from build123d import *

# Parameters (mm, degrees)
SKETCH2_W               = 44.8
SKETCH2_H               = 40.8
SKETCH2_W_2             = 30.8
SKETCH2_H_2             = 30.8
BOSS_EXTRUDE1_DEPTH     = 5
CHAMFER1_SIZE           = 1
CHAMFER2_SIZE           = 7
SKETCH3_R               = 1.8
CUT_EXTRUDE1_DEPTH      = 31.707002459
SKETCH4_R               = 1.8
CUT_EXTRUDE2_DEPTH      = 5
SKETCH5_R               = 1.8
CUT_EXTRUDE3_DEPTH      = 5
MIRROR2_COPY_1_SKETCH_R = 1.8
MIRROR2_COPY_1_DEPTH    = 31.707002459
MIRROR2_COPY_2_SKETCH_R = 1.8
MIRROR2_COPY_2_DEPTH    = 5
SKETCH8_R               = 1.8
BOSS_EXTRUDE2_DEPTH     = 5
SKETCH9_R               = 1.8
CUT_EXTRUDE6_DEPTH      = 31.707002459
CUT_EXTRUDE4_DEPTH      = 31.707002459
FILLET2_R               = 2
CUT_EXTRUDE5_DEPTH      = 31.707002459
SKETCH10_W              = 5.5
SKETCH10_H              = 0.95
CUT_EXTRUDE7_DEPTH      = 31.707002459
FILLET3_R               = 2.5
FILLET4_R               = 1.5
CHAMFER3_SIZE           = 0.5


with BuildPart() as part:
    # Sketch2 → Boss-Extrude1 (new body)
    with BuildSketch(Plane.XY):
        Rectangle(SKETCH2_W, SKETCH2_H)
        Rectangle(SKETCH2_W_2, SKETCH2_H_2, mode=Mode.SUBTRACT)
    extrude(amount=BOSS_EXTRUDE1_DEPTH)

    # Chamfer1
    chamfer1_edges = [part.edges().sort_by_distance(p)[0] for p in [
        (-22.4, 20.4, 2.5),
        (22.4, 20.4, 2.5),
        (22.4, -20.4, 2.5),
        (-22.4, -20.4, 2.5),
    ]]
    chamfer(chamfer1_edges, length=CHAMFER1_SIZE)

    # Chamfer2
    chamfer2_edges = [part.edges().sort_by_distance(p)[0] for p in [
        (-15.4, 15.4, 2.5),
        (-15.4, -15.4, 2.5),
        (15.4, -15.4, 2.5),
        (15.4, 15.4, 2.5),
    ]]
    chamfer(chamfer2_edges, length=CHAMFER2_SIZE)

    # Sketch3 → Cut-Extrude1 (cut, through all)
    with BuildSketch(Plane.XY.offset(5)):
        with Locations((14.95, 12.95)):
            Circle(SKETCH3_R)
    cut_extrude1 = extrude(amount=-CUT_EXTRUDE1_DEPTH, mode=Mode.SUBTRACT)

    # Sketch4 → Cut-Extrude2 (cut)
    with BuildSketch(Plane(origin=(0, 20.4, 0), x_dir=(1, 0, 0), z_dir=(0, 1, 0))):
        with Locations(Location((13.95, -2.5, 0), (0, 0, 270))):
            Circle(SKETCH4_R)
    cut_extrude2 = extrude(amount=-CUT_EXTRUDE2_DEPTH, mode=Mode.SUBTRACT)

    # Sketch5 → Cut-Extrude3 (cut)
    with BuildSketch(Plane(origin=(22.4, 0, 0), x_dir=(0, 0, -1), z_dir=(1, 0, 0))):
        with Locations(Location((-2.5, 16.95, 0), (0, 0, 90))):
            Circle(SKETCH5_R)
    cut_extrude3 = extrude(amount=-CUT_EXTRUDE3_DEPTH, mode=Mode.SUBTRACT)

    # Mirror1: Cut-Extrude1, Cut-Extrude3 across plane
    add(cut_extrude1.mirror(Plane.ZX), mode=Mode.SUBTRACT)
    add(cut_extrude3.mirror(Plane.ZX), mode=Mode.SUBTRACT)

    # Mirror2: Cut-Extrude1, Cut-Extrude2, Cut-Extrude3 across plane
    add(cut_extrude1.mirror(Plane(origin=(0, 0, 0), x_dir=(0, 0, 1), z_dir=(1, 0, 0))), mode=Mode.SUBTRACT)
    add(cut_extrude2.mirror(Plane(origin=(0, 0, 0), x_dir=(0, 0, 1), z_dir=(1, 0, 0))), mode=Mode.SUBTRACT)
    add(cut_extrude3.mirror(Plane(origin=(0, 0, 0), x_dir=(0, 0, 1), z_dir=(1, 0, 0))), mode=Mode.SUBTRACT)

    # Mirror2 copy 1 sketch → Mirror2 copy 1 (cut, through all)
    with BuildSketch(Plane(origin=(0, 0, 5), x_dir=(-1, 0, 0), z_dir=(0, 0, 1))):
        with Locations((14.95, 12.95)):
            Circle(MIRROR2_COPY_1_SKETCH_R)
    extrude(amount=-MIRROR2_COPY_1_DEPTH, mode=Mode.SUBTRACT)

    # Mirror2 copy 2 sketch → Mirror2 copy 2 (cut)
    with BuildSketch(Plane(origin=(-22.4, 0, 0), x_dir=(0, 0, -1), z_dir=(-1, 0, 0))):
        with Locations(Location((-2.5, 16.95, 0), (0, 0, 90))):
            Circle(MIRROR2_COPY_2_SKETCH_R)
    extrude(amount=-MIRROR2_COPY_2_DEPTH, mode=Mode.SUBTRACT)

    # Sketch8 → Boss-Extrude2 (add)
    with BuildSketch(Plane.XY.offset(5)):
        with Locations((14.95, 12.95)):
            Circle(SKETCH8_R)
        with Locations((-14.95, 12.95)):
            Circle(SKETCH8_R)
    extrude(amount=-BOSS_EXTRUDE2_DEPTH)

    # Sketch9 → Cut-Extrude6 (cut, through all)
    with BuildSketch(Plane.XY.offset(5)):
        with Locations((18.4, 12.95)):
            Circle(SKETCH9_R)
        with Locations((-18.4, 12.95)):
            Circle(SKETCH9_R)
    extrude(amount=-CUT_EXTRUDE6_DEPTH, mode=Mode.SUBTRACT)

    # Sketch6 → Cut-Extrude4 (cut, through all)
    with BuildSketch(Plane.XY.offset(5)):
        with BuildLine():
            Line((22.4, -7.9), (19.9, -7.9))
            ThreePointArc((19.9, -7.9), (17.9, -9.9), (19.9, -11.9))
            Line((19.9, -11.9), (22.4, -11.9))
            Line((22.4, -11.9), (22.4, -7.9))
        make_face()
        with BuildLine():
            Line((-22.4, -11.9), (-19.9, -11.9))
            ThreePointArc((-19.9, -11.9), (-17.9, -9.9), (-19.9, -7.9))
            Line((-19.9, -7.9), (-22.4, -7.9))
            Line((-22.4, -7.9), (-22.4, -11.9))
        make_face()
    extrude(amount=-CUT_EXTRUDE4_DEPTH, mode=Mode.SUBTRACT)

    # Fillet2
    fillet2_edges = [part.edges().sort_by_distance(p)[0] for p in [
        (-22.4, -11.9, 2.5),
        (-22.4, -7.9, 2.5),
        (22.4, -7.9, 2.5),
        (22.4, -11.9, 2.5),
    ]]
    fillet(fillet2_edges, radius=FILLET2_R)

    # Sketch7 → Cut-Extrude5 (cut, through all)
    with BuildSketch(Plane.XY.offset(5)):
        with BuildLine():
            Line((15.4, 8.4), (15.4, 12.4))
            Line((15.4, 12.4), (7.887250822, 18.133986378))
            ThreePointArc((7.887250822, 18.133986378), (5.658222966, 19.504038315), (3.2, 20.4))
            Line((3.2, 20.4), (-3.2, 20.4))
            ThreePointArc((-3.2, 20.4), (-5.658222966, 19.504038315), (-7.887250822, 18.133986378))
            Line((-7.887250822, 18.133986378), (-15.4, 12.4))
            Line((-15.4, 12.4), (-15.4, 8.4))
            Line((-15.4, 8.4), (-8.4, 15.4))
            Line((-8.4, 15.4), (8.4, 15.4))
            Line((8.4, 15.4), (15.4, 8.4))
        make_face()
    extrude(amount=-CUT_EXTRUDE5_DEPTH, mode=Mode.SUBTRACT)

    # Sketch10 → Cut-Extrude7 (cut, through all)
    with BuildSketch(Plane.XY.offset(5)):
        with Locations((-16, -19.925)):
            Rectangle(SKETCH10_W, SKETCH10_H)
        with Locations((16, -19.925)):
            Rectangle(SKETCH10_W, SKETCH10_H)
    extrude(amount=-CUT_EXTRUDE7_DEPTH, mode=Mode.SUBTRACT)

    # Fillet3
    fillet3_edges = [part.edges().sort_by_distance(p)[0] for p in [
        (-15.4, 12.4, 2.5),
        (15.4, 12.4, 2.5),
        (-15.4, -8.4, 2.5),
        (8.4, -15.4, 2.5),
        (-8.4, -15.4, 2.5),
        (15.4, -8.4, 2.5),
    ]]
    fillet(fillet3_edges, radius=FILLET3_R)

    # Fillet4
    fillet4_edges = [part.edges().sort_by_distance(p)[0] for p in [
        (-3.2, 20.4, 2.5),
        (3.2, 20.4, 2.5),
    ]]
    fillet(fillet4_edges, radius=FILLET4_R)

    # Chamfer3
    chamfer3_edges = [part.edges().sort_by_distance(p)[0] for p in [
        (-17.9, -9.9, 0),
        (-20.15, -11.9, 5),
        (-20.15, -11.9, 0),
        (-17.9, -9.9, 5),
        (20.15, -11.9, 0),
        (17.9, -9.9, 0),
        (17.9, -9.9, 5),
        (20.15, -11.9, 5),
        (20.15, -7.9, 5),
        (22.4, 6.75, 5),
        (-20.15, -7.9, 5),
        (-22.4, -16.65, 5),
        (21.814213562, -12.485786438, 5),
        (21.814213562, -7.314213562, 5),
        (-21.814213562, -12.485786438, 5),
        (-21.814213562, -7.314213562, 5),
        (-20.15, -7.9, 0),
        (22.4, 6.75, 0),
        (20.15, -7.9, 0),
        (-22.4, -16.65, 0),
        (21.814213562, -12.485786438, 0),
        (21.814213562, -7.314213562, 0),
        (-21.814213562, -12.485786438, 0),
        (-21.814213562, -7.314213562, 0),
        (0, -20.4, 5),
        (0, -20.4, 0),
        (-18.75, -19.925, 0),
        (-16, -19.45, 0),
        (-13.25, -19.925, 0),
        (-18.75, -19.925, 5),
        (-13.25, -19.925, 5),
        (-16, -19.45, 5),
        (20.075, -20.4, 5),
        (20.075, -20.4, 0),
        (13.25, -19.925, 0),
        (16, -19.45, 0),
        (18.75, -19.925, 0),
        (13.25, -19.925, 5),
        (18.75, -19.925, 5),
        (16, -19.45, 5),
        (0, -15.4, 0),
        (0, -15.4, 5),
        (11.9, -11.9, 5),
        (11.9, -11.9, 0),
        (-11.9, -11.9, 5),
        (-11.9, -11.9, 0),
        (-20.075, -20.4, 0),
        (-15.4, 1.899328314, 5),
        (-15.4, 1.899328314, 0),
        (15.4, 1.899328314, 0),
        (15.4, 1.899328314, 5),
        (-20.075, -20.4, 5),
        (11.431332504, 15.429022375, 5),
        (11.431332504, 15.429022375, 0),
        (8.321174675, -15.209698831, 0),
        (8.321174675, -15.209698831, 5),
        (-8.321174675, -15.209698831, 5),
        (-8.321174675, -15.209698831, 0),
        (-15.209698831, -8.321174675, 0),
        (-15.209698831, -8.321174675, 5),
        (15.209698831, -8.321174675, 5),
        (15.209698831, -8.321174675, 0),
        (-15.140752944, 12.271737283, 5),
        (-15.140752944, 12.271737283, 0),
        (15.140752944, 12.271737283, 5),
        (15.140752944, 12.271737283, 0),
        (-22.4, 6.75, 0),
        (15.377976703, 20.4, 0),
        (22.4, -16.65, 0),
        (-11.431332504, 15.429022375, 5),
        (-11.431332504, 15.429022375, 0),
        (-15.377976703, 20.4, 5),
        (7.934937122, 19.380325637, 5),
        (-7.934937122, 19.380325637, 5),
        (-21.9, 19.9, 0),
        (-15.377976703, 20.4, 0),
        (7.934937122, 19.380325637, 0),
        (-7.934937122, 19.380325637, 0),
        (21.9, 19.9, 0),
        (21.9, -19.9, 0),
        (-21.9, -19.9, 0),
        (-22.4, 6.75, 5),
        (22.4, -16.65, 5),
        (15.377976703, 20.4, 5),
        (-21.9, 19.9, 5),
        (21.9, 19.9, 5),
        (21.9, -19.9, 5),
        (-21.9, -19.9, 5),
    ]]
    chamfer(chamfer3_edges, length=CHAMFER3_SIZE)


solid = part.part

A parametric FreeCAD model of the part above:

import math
import FreeCAD as App
import Part
import Sketcher
from FreeCAD import Vector
Q = App.Units.Quantity


def edges_at(feature, points):
    """Names of the edges that pass closest to the given points."""
    edges = feature.Shape.Edges
    near = lambda p: min(range(len(edges)), key=lambda i: edges[i].distToShape(Part.Vertex(*p))[0])
    return sorted({f"Edge{near(p) + 1}" for p in points})

doc = App.newDocument("Part")
body = doc.addObject("PartDesign::Body", "Body")

# Sketch on XY plane
sketch1 = body.newObject("Sketcher::SketchObject", "Sketch")
sketch1.AttachmentSupport = (doc.getObject("XY_Plane"), [""])
sketch1.MapMode = "FlatFace"
sketch1.addGeometry([
    Part.LineSegment(Vector(-22, 20, 0), Vector(-22, -20, 0)),  # 0
    Part.LineSegment(Vector(-22, -20, 0), Vector(22, -20, 0)),  # 1
    Part.LineSegment(Vector(22, -20, 0), Vector(22, 20, 0)),  # 2
    Part.LineSegment(Vector(22, 20, 0), Vector(-22, 20, 0)),  # 3
    Part.LineSegment(Vector(15, -15, 0), Vector(-15, -15, 0)),  # 4
    Part.LineSegment(Vector(-15, -15, 0), Vector(-15, 15, 0)),  # 5
    Part.LineSegment(Vector(-15, 15, 0), Vector(15, 15, 0)),  # 6
    Part.LineSegment(Vector(15, 15, 0), Vector(15, -15, 0)),  # 7
], False)
sketch1.addConstraint([
    Sketcher.Constraint("Coincident", 0, 2, 1, 1),
    Sketcher.Constraint("Coincident", 1, 2, 2, 1),
    Sketcher.Constraint("Coincident", 2, 2, 3, 1),
    Sketcher.Constraint("Coincident", 3, 2, 0, 1),
    Sketcher.Constraint("Coincident", 4, 2, 5, 1),
    Sketcher.Constraint("Coincident", 5, 2, 6, 1),
    Sketcher.Constraint("Coincident", 6, 2, 7, 1),
    Sketcher.Constraint("Coincident", 7, 2, 4, 1),
    Sketcher.Constraint("Vertical", 0),
    Sketcher.Constraint("Horizontal", 1),
    Sketcher.Constraint("Vertical", 2),
    Sketcher.Constraint("Horizontal", 3),
    Sketcher.Constraint("Horizontal", 4),
    Sketcher.Constraint("Vertical", 5),
    Sketcher.Constraint("Horizontal", 6),
    Sketcher.Constraint("Vertical", 7),
    Sketcher.Constraint("Symmetric", 0, 2, 2, 2, -1, 1),
    Sketcher.Constraint("Symmetric", 4, 2, 6, 2, -1, 1),
    Sketcher.Constraint("Equal", 6, 5),
    Sketcher.Constraint("DistanceX", 1, 1, 1, 2, Q("44.8 mm")),
    Sketcher.Constraint("DistanceX", 4, 2, 4, 1, Q("30.8 mm")),
    Sketcher.Constraint("DistanceY", 0, 2, 0, 1, Q("40.8 mm")),
])
pad1 = body.newObject("PartDesign::Pad", "Pad")
pad1.Profile = sketch1
pad1.Length = 5
doc.recompute()

chamfer = body.newObject("PartDesign::Chamfer", "Chamfer")
chamfer.Base = (pad1, edges_at(pad1, [
    (-22.4, 20.4, 2.5),
    (22.4, 20.4, 2.5),
    (22.4, -20.4, 2.5),
    (-22.4, -20.4, 2.5),
]))
chamfer.Size = 1
doc.recompute()

chamfer2 = body.newObject("PartDesign::Chamfer", "Chamfer001")
chamfer2.Base = (chamfer, edges_at(chamfer, [
    (-15.4, 15.4, 2.5),
    (-15.4, -15.4, 2.5),
    (15.4, -15.4, 2.5),
    (15.4, 15.4, 2.5),
]))
chamfer2.Size = 7

# Sketch on XY plane
sketch2 = body.newObject("Sketcher::SketchObject", "Sketch001")
sketch2.AttachmentSupport = (doc.getObject("XY_Plane"), [""])
sketch2.MapMode = "FlatFace"
sketch2.AttachmentOffset = App.Placement(Vector(0, 0, 5), App.Rotation())
sketch2.addGeometry(Part.Circle(Vector(14.9, 12.9, 0), Vector(0, 0, 1), 1.8), False)
sketch2.addConstraint([
    Sketcher.Constraint("Diameter", 0, Q("3.6 mm")),
    Sketcher.Constraint("DistanceX", -1, 1, 0, 3, Q("14.95 mm")),
    Sketcher.Constraint("DistanceY", -1, 1, 0, 3, Q("12.95 mm")),
])
pocket1 = body.newObject("PartDesign::Pocket", "Pocket")
pocket1.Profile = sketch2
pocket1.Type = "ThroughAll"

# Sketch on XZ plane
sketch3 = body.newObject("Sketcher::SketchObject", "Sketch002")
sketch3.AttachmentSupport = (doc.getObject("XZ_Plane"), [""])
sketch3.MapMode = "FlatFace"
sketch3.AttachmentOffset = App.Placement(Vector(0, 0, -20.4), App.Rotation())
sketch3.addGeometry(Part.Circle(Vector(13.9, 2.5, 0), Vector(0, 0, 1), 1.8), False)
sketch3.addConstraint([
    Sketcher.Constraint("Diameter", 0, Q("3.6 mm")),
    Sketcher.Constraint("DistanceY", -1, 1, 0, 3, Q("2.5 mm")),
    Sketcher.Constraint("DistanceX", -1, 1, 0, 3, Q("13.95 mm")),
])
pocket2 = body.newObject("PartDesign::Pocket", "Pocket001")
pocket2.Profile = sketch3
pocket2.Length = 5
pocket2.Reversed = True

# Sketch on YZ plane
sketch4 = body.newObject("Sketcher::SketchObject", "Sketch003")
sketch4.AttachmentSupport = (doc.getObject("YZ_Plane"), [""])
sketch4.MapMode = "FlatFace"
sketch4.AttachmentOffset = App.Placement(Vector(0, 0, 22.4), App.Rotation())
sketch4.addGeometry(Part.Circle(Vector(16.9, 2.5, 0), Vector(0, 0, 1), 1.8), False)
sketch4.addConstraint([
    Sketcher.Constraint("Diameter", 0, Q("3.6 mm")),
    Sketcher.Constraint("DistanceY", -1, 1, 0, 3, Q("2.5 mm")),
    Sketcher.Constraint("DistanceX", -1, 1, 0, 3, Q("16.95 mm")),
])
pocket3 = body.newObject("PartDesign::Pocket", "Pocket002")
pocket3.Profile = sketch4
pocket3.Length = 5
doc.recompute()

mirrored = body.newObject("PartDesign::Mirrored", "Mirrored")
mirrored.Originals = [pocket1, pocket3]
mirrored.MirrorPlane = (doc.getObject("XZ_Plane"), [""])
body.Tip = mirrored
doc.recompute()

mirrored2 = body.newObject("PartDesign::Mirrored", "Mirrored001")
mirrored2.Originals = [pocket1, pocket2, pocket3]
mirrored2.MirrorPlane = (doc.getObject("YZ_Plane"), [""])
body.Tip = mirrored2

# Sketch on XY plane
sketch5 = body.newObject("Sketcher::SketchObject", "Sketch004")
sketch5.AttachmentSupport = (doc.getObject("XY_Plane"), [""])
sketch5.MapMode = "FlatFace"
sketch5.AttachmentOffset = App.Placement(Vector(0, 0, 5), App.Rotation())
sketch5.addGeometry(Part.Circle(Vector(-14.9, -12.9, 0), Vector(0, 0, 1), 1.8), False)
sketch5.addConstraint([
    Sketcher.Constraint("Diameter", 0, Q("3.6 mm")),
    Sketcher.Constraint("DistanceX", 0, 3, -1, 1, Q("14.95 mm")),
    Sketcher.Constraint("DistanceY", 0, 3, -1, 1, Q("12.95 mm")),
])
pocket4 = body.newObject("PartDesign::Pocket", "Pocket003")
pocket4.Profile = sketch5
pocket4.Type = "ThroughAll"

# Sketch on YZ plane
sketch6 = body.newObject("Sketcher::SketchObject", "Sketch005")
sketch6.AttachmentSupport = (doc.getObject("YZ_Plane"), [""])
sketch6.MapMode = "FlatFace"
sketch6.AttachmentOffset = App.Placement(Vector(0, 0, -22.4), App.Rotation())
sketch6.addGeometry(Part.Circle(Vector(-16.9, 2.5, 0), Vector(0, 0, 1), 1.8), False)
sketch6.addConstraint([
    Sketcher.Constraint("Diameter", 0, Q("3.6 mm")),
    Sketcher.Constraint("DistanceY", -1, 1, 0, 3, Q("2.5 mm")),
    Sketcher.Constraint("DistanceX", 0, 3, -1, 1, Q("16.95 mm")),
])
pocket5 = body.newObject("PartDesign::Pocket", "Pocket004")
pocket5.Profile = sketch6
pocket5.Length = 5
pocket5.Reversed = True

# Sketch on XY plane
sketch7 = body.newObject("Sketcher::SketchObject", "Sketch006")
sketch7.AttachmentSupport = (doc.getObject("XY_Plane"), [""])
sketch7.MapMode = "FlatFace"
sketch7.AttachmentOffset = App.Placement(Vector(0, 0, 5), App.Rotation())
sketch7.addGeometry([
    Part.Circle(Vector(14.9, 12.9, 0), Vector(0, 0, 1), 1.8),
    Part.Circle(Vector(-14.9, 12.9, 0), Vector(0, 0, 1), 1.8),
], False)
sketch7.addConstraint([
    Sketcher.Constraint("Equal", 0, 1),
    Sketcher.Constraint("Symmetric", 0, 3, 1, 3, -2),
    Sketcher.Constraint("Diameter", 0, Q("3.6 mm")),
    Sketcher.Constraint("DistanceX", 1, 3, 0, 3, Q("29.9 mm")),
    Sketcher.Constraint("DistanceY", -1, 1, 0, 3, Q("12.95 mm")),
])
pad2 = body.newObject("PartDesign::Pad", "Pad001")
pad2.Profile = sketch7
pad2.Length = 5
pad2.Reversed = True

# Sketch on XY plane
sketch8 = body.newObject("Sketcher::SketchObject", "Sketch007")
sketch8.AttachmentSupport = (doc.getObject("XY_Plane"), [""])
sketch8.MapMode = "FlatFace"
sketch8.AttachmentOffset = App.Placement(Vector(0, 0, 5), App.Rotation())
sketch8.addGeometry([
    Part.Circle(Vector(18.4, 12.9, 0), Vector(0, 0, 1), 1.8),
    Part.Circle(Vector(-18.4, 12.9, 0), Vector(0, 0, 1), 1.8),
], False)
sketch8.addConstraint([
    Sketcher.Constraint("Equal", 0, 1),
    Sketcher.Constraint("Symmetric", 0, 3, 1, 3, -2),
    Sketcher.Constraint("Diameter", 0, Q("3.6 mm")),
    Sketcher.Constraint("DistanceX", -1, 1, 0, 3, Q("18.4 mm")),
    Sketcher.Constraint("DistanceY", -1, 1, 0, 3, Q("12.95 mm")),
])
pocket6 = body.newObject("PartDesign::Pocket", "Pocket005")
pocket6.Profile = sketch8
pocket6.Type = "ThroughAll"

# Sketch on XY plane
sketch9 = body.newObject("Sketcher::SketchObject", "Sketch008")
sketch9.AttachmentSupport = (doc.getObject("XY_Plane"), [""])
sketch9.MapMode = "FlatFace"
sketch9.AttachmentOffset = App.Placement(Vector(0, 0, 5), App.Rotation())
sketch9.addGeometry([
    Part.LineSegment(Vector(22.4, -7.9, 0), Vector(19.9, -7.9, 0)),  # 0
    Part.ArcOfCircle(Part.Circle(Vector(19.9, -9.9, 0), Vector(0, 0, 1), 2), math.radians(90), math.radians(270)),  # 1
    Part.LineSegment(Vector(19.9, -11.9, 0), Vector(22.4, -11.9, 0)),  # 2
    Part.LineSegment(Vector(22.4, -11.9, 0), Vector(22.4, -7.9, 0)),  # 3
    Part.LineSegment(Vector(-22.4, -11.9, 0), Vector(-19.9, -11.9, 0)),  # 4
    Part.ArcOfCircle(Part.Circle(Vector(-19.9, -9.9, 0), Vector(0, 0, 1), 2), math.radians(-90), math.radians(90)),  # 5
    Part.LineSegment(Vector(-19.9, -7.9, 0), Vector(-22.4, -7.9, 0)),  # 6
    Part.LineSegment(Vector(-22.4, -7.9, 0), Vector(-22.4, -11.9, 0)),  # 7
], False)
sketch9.addConstraint([
    Sketcher.Constraint("Tangent", 0, 2, 1, 1),
    Sketcher.Constraint("Tangent", 1, 2, 2, 1),
    Sketcher.Constraint("Coincident", 2, 2, 3, 1),
    Sketcher.Constraint("Coincident", 3, 2, 0, 1),
    Sketcher.Constraint("Tangent", 4, 2, 5, 1),
    Sketcher.Constraint("Tangent", 5, 2, 6, 1),
    Sketcher.Constraint("Coincident", 6, 2, 7, 1),
    Sketcher.Constraint("Coincident", 7, 2, 4, 1),
    Sketcher.Constraint("Horizontal", 0),
    Sketcher.Constraint("Horizontal", 2),
    Sketcher.Constraint("Vertical", 3),
    Sketcher.Constraint("Horizontal", 4),
    Sketcher.Constraint("Horizontal", 6),
    Sketcher.Constraint("Vertical", 7),
    Sketcher.Constraint("Equal", 1, 5),
    Sketcher.Constraint("Symmetric", 1, 3, 5, 3, -2),
    Sketcher.Constraint("Equal", 2, 4),
    Sketcher.Constraint("Radius", 1, Q("2 mm")),
    Sketcher.Constraint("DistanceX", 0, 2, 0, 1, Q("2.5 mm")),
    Sketcher.Constraint("DistanceX", -1, 1, 1, 3, Q("19.9 mm")),
    Sketcher.Constraint("DistanceY", 1, 3, -1, 1, Q("9.9 mm")),
])
pocket7 = body.newObject("PartDesign::Pocket", "Pocket006")
pocket7.Profile = sketch9
pocket7.Type = "ThroughAll"
doc.recompute()

fillet = body.newObject("PartDesign::Fillet", "Fillet")
fillet.Base = (pocket7, edges_at(pocket7, [
    (-22.4, -11.9, 2.5),
    (-22.4, -7.9, 2.5),
    (22.4, -7.9, 2.5),
    (22.4, -11.9, 2.5),
]))
fillet.Radius = 2

# Sketch on XY plane
sketch10 = body.newObject("Sketcher::SketchObject", "Sketch009")
sketch10.AttachmentSupport = (doc.getObject("XY_Plane"), [""])
sketch10.MapMode = "FlatFace"
sketch10.AttachmentOffset = App.Placement(Vector(0, 0, 5), App.Rotation())
sketch10.addGeometry([
    Part.LineSegment(Vector(15.4, 8.4, 0), Vector(15.4, 12.4, 0)),  # 0
    Part.LineSegment(Vector(15.4, 12.4, 0), Vector(7.9, 18.1, 0)),  # 1
    Part.ArcOfCircle(Part.Circle(Vector(0, 7.8, 0), Vector(0, 0, 1), 13), math.radians(53), math.radians(76)),  # 2
    Part.LineSegment(Vector(3.2, 20.4, 0), Vector(-3.2, 20.4, 0)),  # 3
    Part.ArcOfCircle(Part.Circle(Vector(0, 7.8, 0), Vector(0, 0, 1), 13), math.radians(104), math.radians(127)),  # 4
    Part.LineSegment(Vector(-7.9, 18.1, 0), Vector(-15.4, 12.4, 0)),  # 5
    Part.LineSegment(Vector(-15.4, 12.4, 0), Vector(-15.4, 8.4, 0)),  # 6
    Part.LineSegment(Vector(-15.4, 8.4, 0), Vector(-8.4, 15.4, 0)),  # 7
    Part.LineSegment(Vector(-8.4, 15.4, 0), Vector(8.4, 15.4, 0)),  # 8
    Part.LineSegment(Vector(8.4, 15.4, 0), Vector(15.4, 8.4, 0)),  # 9
], False)
sketch10.addConstraint([
    Sketcher.Constraint("Coincident", 0, 2, 1, 1),
    Sketcher.Constraint("Tangent", 1, 2, 2, 1),
    Sketcher.Constraint("Coincident", 2, 2, 3, 1),
    Sketcher.Constraint("Coincident", 3, 2, 4, 1),
    Sketcher.Constraint("Tangent", 4, 2, 5, 1),
    Sketcher.Constraint("Coincident", 5, 2, 6, 1),
    Sketcher.Constraint("Coincident", 6, 2, 7, 1),
    Sketcher.Constraint("Coincident", 7, 2, 8, 1),
    Sketcher.Constraint("Coincident", 8, 2, 9, 1),
    Sketcher.Constraint("Coincident", 9, 2, 0, 1),
    Sketcher.Constraint("Vertical", 0),
    Sketcher.Constraint("Horizontal", 3),
    Sketcher.Constraint("Vertical", 6),
    Sketcher.Constraint("Horizontal", 8),
    Sketcher.Constraint("Coincident", 4, 3, 2, 3),
    Sketcher.Constraint("Equal", 2, 4),
    Sketcher.Constraint("Symmetric", 1, 2, 4, 2, -2),
    Sketcher.Constraint("Symmetric", 6, 2, 9, 2, -2),
    Sketcher.Constraint("Perpendicular", 7, 9),
    Sketcher.Constraint("Equal", 7, 9),
    Sketcher.Constraint("Radius", 2, Q("13 mm")),
    Sketcher.Constraint("DistanceY", 0, 1, 0, 2, Q("4 mm")),
    Sketcher.Constraint("DistanceX", 3, 2, 3, 1, Q("6.4 mm")),
    Sketcher.Constraint("DistanceX", 8, 1, 8, 2, Q("16.8 mm")),
    Sketcher.Constraint("DistanceY", 0, 2, 2, 2, Q("8 mm")),
    Sketcher.Constraint("DistanceY", 7, 2, 3, 2, Q("5 mm")),
    Sketcher.Constraint("DistanceY", -1, 1, 2, 3, Q("7.8 mm")),
])
pocket8 = body.newObject("PartDesign::Pocket", "Pocket007")
pocket8.Profile = sketch10
pocket8.Type = "ThroughAll"

# Sketch on XY plane
sketch11 = body.newObject("Sketcher::SketchObject", "Sketch010")
sketch11.AttachmentSupport = (doc.getObject("XY_Plane"), [""])
sketch11.MapMode = "FlatFace"
sketch11.AttachmentOffset = App.Placement(Vector(0, 0, 5), App.Rotation())
sketch11.addGeometry([
    Part.LineSegment(Vector(-18.8, -19.4, 0), Vector(-18.8, -20.4, 0)),  # 0
    Part.LineSegment(Vector(-18.8, -20.4, 0), Vector(-13.2, -20.4, 0)),  # 1
    Part.LineSegment(Vector(-13.2, -20.4, 0), Vector(-13.2, -19.4, 0)),  # 2
    Part.LineSegment(Vector(-13.2, -19.4, 0), Vector(-18.8, -19.4, 0)),  # 3
    Part.LineSegment(Vector(13.2, -19.4, 0), Vector(13.2, -20.4, 0)),  # 4
    Part.LineSegment(Vector(13.2, -20.4, 0), Vector(18.8, -20.4, 0)),  # 5
    Part.LineSegment(Vector(18.8, -20.4, 0), Vector(18.8, -19.4, 0)),  # 6
    Part.LineSegment(Vector(18.8, -19.4, 0), Vector(13.2, -19.4, 0)),  # 7
], False)
sketch11.addConstraint([
    Sketcher.Constraint("Coincident", 0, 2, 1, 1),
    Sketcher.Constraint("Coincident", 1, 2, 2, 1),
    Sketcher.Constraint("Coincident", 2, 2, 3, 1),
    Sketcher.Constraint("Coincident", 3, 2, 0, 1),
    Sketcher.Constraint("Coincident", 4, 2, 5, 1),
    Sketcher.Constraint("Coincident", 5, 2, 6, 1),
    Sketcher.Constraint("Coincident", 6, 2, 7, 1),
    Sketcher.Constraint("Coincident", 7, 2, 4, 1),
    Sketcher.Constraint("Vertical", 0),
    Sketcher.Constraint("Horizontal", 1),
    Sketcher.Constraint("Vertical", 2),
    Sketcher.Constraint("Horizontal", 3),
    Sketcher.Constraint("Vertical", 4),
    Sketcher.Constraint("Horizontal", 5),
    Sketcher.Constraint("Vertical", 6),
    Sketcher.Constraint("Horizontal", 7),
    Sketcher.Constraint("Symmetric", 1, 2, 4, 2, -2),
    Sketcher.Constraint("Symmetric", 3, 2, 6, 2, -2),
    Sketcher.Constraint("DistanceX", 1, 1, 1, 2, Q("5.5 mm")),
    Sketcher.Constraint("DistanceX", 0, 2, 4, 2, Q("32 mm")),
    Sketcher.Constraint("DistanceY", 0, 2, 0, 1, Q("0.95 mm")),
    Sketcher.Constraint("DistanceY", 0, 2, -1, 1, Q("20.4 mm")),
])
pocket9 = body.newObject("PartDesign::Pocket", "Pocket008")
pocket9.Profile = sketch11
pocket9.Type = "ThroughAll"
doc.recompute()

fillet2 = body.newObject("PartDesign::Fillet", "Fillet001")
fillet2.Base = (pocket9, edges_at(pocket9, [
    (-15.4, 12.4, 2.5),
    (15.4, 12.4, 2.5),
    (-15.4, -8.4, 2.5),
    (8.4, -15.4, 2.5),
    (-8.4, -15.4, 2.5),
    (15.4, -8.4, 2.5),
]))
fillet2.Radius = 2.5
doc.recompute()

fillet3 = body.newObject("PartDesign::Fillet", "Fillet002")
fillet3.Base = (fillet2, edges_at(fillet2, [(-3.2, 20.4, 2.5), (3.2, 20.4, 2.5)]))
fillet3.Radius = 1.5
doc.recompute()

chamfer3 = body.newObject("PartDesign::Chamfer", "Chamfer002")
chamfer3.Base = (fillet3, edges_at(fillet3, [
    (-17.9, -9.9, 0),
    (-20.15, -11.9, 5),
    (-20.15, -11.9, 0),
    (-17.9, -9.9, 5),
    (20.15, -11.9, 0),
    (17.9, -9.9, 0),
    (17.9, -9.9, 5),
    (20.15, -11.9, 5),
    (20.15, -7.9, 5),
    (22.4, 6.75, 5),
    (-20.15, -7.9, 5),
    (-22.4, -16.65, 5),
    (21.814, -12.486, 5),
    (21.814, -7.314, 5),
    (-21.814, -12.486, 5),
    (-21.814, -7.314, 5),
    (-20.15, -7.9, 0),
    (22.4, 6.75, 0),
    (20.15, -7.9, 0),
    (-22.4, -16.65, 0),
    (21.814, -12.486, 0),
    (21.814, -7.314, 0),
    (-21.814, -12.486, 0),
    (-21.814, -7.314, 0),
    (0, -20.4, 5),
    (0, -20.4, 0),
    (-18.75, -19.925, 0),
    (-16, -19.45, 0),
    (-13.25, -19.925, 0),
    (-18.75, -19.925, 5),
    (-13.25, -19.925, 5),
    (-16, -19.45, 5),
    (20.075, -20.4, 5),
    (20.075, -20.4, 0),
    (13.25, -19.925, 0),
    (16, -19.45, 0),
    (18.75, -19.925, 0),
    (13.25, -19.925, 5),
    (18.75, -19.925, 5),
    (16, -19.45, 5),
    (0, -15.4, 0),
    (0, -15.4, 5),
    (11.9, -11.9, 5),
    (11.9, -11.9, 0),
    (-11.9, -11.9, 5),
    (-11.9, -11.9, 0),
    (-20.075, -20.4, 0),
    (-15.4, 1.899, 5),
    (-15.4, 1.899, 0),
    (15.4, 1.899, 0),
    (15.4, 1.899, 5),
    (-20.075, -20.4, 5),
    (11.431, 15.429, 5),
    (11.431, 15.429, 0),
    (8.321, -15.21, 0),
    (8.321, -15.21, 5),
    (-8.321, -15.21, 5),
    (-8.321, -15.21, 0),
    (-15.21, -8.321, 0),
    (-15.21, -8.321, 5),
    (15.21, -8.321, 5),
    (15.21, -8.321, 0),
    (-15.141, 12.272, 5),
    (-15.141, 12.272, 0),
    (15.141, 12.272, 5),
    (15.141, 12.272, 0),
    (-22.4, 6.75, 0),
    (15.378, 20.4, 0),
    (22.4, -16.65, 0),
    (-11.431, 15.429, 5),
    (-11.431, 15.429, 0),
    (-15.378, 20.4, 5),
    (7.935, 19.38, 5),
    (-7.935, 19.38, 5),
    (-21.9, 19.9, 0),
    (-15.378, 20.4, 0),
    (7.935, 19.38, 0),
    (-7.935, 19.38, 0),
    (21.9, 19.9, 0),
    (21.9, -19.9, 0),
    (-21.9, -19.9, 0),
    (-22.4, 6.75, 5),
    (22.4, -16.65, 5),
    (15.378, 20.4, 5),
    (-21.9, 19.9, 5),
    (21.9, 19.9, 5),
    (21.9, -19.9, 5),
    (-21.9, -19.9, 5),
]))
chamfer3.Size = 0.5

doc.recompute()
